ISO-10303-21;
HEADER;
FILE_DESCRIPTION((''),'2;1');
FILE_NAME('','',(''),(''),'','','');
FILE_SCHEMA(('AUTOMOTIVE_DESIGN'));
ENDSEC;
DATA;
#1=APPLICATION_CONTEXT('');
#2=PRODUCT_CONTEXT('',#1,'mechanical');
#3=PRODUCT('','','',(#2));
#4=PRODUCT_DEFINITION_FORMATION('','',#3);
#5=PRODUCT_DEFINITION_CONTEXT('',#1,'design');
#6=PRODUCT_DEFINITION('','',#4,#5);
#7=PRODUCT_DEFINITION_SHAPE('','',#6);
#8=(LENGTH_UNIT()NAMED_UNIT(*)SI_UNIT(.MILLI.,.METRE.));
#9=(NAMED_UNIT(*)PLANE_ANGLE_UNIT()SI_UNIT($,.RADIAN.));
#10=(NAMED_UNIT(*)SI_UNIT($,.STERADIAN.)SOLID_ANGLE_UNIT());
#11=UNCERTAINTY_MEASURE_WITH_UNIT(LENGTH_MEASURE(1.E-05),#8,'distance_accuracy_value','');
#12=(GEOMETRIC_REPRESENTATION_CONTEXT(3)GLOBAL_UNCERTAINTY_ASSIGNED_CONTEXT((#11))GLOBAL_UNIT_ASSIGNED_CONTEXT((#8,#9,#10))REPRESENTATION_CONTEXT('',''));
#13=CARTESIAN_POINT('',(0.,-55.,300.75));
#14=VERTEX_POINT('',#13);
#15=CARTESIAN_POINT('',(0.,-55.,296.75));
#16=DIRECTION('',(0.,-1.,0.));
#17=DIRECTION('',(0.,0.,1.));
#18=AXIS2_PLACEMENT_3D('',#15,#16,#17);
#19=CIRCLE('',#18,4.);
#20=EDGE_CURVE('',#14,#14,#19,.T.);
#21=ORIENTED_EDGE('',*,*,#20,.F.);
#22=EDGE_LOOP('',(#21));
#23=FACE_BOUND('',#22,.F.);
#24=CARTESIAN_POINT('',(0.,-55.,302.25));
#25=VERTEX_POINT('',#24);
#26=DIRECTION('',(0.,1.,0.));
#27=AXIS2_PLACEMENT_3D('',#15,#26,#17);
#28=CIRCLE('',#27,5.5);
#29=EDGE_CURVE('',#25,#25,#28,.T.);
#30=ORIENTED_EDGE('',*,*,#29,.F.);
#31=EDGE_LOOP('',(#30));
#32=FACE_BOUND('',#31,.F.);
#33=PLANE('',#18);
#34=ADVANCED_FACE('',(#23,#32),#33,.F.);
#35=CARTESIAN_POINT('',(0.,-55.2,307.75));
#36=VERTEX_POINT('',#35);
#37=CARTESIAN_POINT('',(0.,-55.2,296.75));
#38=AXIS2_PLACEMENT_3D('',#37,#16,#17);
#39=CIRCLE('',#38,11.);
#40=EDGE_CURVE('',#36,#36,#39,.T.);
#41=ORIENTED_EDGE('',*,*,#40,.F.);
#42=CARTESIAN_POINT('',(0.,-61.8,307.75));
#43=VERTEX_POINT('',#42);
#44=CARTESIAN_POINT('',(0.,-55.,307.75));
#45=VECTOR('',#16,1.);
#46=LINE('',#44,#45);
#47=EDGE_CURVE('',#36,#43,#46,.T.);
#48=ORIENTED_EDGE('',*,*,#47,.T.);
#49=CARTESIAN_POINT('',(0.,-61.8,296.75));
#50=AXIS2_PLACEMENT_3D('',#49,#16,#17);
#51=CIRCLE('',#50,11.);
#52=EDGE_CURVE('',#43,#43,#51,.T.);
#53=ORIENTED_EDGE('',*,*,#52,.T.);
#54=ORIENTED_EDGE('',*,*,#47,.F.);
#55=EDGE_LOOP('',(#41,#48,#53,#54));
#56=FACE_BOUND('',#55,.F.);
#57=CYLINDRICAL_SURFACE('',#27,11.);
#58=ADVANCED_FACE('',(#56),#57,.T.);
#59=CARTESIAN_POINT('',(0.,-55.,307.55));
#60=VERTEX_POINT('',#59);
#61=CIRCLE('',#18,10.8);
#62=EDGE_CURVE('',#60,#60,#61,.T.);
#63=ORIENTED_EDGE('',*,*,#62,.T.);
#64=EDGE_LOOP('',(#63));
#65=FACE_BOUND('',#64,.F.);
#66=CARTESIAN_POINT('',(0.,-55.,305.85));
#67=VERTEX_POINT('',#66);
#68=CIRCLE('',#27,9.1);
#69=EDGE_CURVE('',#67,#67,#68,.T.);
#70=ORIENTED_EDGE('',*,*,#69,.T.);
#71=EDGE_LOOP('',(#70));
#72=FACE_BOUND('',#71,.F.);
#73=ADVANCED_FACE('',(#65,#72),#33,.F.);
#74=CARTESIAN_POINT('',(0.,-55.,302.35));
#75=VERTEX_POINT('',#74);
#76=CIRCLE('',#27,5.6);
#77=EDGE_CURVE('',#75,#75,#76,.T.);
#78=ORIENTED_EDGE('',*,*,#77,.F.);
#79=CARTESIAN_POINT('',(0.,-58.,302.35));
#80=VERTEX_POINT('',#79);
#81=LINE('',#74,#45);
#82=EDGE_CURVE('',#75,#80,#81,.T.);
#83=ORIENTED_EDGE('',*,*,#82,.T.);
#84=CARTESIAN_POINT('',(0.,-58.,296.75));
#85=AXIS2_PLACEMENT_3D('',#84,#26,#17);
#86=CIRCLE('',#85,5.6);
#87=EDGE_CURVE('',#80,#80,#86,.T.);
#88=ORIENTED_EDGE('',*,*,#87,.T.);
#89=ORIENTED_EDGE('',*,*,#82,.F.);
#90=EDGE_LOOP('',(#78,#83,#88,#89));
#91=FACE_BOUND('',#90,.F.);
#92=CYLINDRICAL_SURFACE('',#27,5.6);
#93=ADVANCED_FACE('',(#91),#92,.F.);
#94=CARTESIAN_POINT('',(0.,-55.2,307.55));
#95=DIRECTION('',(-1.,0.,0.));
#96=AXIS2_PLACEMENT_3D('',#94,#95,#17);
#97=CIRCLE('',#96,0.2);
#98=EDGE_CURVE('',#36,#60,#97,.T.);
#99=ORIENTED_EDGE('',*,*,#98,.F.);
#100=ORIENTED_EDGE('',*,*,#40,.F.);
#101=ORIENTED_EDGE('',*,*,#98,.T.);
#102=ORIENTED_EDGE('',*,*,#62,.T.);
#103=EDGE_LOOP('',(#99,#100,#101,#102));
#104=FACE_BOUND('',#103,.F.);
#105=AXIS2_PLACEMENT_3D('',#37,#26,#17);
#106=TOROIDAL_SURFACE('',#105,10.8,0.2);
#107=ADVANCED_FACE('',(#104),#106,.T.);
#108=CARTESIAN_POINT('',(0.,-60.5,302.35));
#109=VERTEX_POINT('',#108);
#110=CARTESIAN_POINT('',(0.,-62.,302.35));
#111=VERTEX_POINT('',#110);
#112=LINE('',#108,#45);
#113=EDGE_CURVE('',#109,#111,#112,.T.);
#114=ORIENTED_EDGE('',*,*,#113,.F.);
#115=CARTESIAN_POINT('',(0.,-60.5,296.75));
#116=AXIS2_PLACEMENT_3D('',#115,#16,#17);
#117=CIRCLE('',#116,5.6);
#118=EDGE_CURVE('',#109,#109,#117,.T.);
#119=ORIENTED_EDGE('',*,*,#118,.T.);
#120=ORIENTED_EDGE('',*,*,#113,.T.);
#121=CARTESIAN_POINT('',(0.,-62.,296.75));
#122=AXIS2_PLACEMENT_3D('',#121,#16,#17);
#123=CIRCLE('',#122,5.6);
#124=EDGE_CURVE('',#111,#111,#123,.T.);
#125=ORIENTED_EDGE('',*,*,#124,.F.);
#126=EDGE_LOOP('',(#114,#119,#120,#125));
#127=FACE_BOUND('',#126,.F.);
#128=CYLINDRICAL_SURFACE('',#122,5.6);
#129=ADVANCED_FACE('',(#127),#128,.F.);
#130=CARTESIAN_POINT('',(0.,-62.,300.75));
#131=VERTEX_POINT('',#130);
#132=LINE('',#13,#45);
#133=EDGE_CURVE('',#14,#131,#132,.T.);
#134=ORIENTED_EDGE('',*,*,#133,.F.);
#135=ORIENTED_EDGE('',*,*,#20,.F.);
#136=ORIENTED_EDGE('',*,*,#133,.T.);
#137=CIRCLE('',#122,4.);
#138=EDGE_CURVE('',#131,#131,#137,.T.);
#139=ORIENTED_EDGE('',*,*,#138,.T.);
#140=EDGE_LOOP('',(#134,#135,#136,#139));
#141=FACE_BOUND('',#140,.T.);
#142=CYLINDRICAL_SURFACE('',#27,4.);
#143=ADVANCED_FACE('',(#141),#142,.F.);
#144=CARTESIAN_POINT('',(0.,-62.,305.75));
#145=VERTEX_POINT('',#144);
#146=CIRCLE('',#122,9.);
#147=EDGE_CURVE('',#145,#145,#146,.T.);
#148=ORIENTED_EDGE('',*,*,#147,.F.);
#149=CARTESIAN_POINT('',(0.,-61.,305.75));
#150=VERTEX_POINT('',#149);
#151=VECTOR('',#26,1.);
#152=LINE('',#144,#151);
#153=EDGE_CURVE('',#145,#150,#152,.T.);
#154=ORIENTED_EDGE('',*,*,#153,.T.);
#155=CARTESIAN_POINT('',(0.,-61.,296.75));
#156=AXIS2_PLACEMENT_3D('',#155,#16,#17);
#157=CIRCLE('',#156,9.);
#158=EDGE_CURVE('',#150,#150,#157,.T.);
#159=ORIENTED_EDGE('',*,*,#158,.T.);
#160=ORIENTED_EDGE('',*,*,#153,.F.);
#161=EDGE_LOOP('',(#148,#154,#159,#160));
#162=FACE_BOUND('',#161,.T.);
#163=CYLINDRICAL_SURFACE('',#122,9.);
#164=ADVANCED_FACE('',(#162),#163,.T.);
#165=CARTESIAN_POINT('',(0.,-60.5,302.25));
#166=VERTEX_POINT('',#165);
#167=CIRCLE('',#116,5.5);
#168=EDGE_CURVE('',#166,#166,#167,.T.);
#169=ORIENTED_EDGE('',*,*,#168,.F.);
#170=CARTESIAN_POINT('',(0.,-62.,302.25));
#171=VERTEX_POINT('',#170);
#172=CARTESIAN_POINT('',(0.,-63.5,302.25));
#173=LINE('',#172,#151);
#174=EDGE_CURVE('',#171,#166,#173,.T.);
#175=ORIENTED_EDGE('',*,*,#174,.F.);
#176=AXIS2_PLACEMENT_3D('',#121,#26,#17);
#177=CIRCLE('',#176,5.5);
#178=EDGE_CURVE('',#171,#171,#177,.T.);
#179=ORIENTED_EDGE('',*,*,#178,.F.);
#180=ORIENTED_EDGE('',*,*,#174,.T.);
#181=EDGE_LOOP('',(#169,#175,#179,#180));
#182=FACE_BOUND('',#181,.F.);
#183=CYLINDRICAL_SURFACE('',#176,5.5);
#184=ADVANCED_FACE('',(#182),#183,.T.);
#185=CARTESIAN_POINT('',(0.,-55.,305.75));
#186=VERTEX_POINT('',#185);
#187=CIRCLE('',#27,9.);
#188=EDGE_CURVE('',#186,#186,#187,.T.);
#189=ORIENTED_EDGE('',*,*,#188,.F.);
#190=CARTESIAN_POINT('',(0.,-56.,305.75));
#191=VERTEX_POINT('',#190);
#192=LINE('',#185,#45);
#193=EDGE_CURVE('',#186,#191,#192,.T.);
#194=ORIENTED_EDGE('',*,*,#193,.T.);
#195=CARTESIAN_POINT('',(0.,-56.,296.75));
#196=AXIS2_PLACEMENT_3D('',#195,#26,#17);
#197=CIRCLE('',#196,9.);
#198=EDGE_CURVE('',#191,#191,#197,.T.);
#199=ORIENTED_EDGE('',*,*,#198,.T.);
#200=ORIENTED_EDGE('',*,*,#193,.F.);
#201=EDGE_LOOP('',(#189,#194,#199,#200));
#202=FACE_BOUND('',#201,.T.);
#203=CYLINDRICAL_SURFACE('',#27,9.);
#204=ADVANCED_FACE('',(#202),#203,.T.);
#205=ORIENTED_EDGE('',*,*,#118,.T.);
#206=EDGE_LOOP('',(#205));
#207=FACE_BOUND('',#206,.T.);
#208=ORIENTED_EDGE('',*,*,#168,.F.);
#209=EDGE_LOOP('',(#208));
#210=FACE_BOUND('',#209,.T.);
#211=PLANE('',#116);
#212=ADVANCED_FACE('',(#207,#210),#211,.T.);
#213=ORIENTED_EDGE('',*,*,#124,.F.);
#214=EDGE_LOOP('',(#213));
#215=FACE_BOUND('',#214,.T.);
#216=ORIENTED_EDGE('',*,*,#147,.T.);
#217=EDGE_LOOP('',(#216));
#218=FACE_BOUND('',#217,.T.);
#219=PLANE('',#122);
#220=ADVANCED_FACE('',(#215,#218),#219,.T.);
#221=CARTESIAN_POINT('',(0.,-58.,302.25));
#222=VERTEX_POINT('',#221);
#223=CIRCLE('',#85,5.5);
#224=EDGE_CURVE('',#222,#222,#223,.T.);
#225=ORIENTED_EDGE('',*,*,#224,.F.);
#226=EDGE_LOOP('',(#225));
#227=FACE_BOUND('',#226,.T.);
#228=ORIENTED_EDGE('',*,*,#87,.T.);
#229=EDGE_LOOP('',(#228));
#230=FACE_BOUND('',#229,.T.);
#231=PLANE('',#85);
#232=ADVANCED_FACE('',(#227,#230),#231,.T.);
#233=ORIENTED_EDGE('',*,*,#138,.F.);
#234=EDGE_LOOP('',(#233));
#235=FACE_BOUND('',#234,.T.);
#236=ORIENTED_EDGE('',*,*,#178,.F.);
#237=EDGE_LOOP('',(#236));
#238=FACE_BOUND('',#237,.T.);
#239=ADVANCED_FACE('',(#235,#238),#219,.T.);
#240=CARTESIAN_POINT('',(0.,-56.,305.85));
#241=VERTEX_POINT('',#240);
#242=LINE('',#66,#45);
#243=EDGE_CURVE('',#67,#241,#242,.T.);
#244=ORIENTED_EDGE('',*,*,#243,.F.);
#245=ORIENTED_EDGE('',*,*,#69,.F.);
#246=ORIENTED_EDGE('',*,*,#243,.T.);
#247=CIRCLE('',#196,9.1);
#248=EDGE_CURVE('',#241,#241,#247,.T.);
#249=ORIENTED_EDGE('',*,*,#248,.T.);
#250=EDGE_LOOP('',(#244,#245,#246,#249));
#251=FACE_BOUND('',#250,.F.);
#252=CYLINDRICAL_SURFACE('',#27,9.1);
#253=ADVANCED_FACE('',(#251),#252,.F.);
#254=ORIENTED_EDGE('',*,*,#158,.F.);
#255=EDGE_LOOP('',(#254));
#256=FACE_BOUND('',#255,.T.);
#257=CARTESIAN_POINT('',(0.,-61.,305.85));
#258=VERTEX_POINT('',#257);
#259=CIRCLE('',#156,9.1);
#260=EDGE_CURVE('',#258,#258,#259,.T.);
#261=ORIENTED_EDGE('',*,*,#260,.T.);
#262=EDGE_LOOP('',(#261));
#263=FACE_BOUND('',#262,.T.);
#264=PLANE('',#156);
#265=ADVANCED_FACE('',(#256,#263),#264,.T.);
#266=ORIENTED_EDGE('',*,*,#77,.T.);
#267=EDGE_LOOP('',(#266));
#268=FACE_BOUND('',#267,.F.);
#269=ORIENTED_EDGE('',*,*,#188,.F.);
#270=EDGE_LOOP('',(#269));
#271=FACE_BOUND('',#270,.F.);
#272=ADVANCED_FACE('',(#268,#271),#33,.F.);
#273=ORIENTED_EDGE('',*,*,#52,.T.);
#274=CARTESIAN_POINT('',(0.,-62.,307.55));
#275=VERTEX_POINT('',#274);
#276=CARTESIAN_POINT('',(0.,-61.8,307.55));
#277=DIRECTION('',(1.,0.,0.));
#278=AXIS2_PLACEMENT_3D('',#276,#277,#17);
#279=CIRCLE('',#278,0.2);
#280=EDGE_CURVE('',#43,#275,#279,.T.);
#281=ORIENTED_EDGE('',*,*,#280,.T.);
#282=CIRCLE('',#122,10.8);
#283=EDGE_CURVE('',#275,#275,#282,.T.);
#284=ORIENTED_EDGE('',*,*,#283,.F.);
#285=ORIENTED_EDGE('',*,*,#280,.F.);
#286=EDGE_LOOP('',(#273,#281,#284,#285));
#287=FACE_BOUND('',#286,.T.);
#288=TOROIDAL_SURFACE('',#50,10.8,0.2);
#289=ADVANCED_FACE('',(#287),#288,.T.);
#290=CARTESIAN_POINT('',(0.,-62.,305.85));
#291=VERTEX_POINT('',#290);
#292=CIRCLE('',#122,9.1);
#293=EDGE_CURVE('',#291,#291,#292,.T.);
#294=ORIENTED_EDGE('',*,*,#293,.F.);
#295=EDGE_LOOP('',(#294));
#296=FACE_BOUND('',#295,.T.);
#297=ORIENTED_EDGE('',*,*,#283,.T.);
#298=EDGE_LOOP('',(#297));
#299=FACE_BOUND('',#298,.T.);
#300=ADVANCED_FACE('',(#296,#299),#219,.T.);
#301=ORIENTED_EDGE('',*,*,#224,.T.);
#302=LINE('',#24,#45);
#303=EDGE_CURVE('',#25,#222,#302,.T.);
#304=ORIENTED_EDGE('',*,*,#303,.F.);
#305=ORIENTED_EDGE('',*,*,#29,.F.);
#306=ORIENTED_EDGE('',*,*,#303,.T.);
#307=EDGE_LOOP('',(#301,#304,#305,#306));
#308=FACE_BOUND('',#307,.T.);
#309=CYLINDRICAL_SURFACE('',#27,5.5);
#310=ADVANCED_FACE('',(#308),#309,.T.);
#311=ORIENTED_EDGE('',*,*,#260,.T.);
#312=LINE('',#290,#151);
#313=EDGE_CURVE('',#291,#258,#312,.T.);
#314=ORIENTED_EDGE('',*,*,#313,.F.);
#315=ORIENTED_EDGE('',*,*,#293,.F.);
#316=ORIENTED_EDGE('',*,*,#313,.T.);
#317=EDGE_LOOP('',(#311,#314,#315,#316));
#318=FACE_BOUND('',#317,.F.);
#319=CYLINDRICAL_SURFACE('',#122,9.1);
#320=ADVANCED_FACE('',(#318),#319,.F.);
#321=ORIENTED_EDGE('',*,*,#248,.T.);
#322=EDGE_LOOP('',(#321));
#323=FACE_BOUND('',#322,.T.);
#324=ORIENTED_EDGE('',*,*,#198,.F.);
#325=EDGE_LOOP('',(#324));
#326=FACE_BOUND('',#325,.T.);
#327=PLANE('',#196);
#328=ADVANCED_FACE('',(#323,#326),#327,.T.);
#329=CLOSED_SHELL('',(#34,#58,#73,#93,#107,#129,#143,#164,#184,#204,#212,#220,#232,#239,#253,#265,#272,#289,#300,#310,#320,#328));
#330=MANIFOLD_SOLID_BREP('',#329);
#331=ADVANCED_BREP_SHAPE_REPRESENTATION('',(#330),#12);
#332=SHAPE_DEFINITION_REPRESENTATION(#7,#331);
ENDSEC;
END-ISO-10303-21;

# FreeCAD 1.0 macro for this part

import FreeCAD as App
import Part
import Sketcher
Q = App.Units.Quantity


def edges_at(feature, points):
    """Names of the edges that pass closest to the given points."""
    edges = feature.Shape.Edges
    near = lambda p: min(range(len(edges)), key=lambda i: edges[i].distToShape(Part.Vertex(*p))[0])
    return sorted({f"Edge{near(p) + 1}" for p in points})

doc = App.newDocument("Part")
params = doc.addObject("Spreadsheet::Sheet", "Params")
for row, (alias, value) in enumerate([
    ("sketch1_diameter", "22 mm"),
    ("sketch1_diameter2", "8 mm"),
    ("pad1_length", "7 mm"),
    ("sketch2_diameter", "11 mm"),
    ("sketch2_diameter2", "11.2 mm"),
    ("pocket1_length", "3 mm"),
    ("sketch3_diameter", "11 mm"),
    ("sketch3_diameter2", "11.2 mm"),
    ("pocket2_length", "3 mm"),
    ("sketch4_diameter", "18 mm"),
    ("sketch4_diameter2", "18.2 mm"),
    ("pocket3_length", "1 mm"),
    ("sketch5_diameter", "18 mm"),
    ("sketch5_diameter2", "18.2 mm"),
    ("pocket4_length", "1 mm"),
    ("fillet_radius", "0.2 mm"),
], start=1):
    params.set(f"A{row}", alias)
    params.set(f"B{row}", "=" + value)
    params.setAlias(f"B{row}", alias)

body = doc.addObject("PartDesign::Body", "Body")

# Sketch on XY plane
sketch1 = body.newObject("Sketcher::SketchObject", "Sketch")
sketch1.AttachmentSupport = (doc.getObject("XY_Plane"), [""])
sketch1.MapMode = "FlatFace"
sketch1.addGeometry([
    Part.Circle(App.Vector(0, 0, 0), App.Vector(0, 0, 1), 11),
    Part.Circle(App.Vector(0, 0, 0), App.Vector(0, 0, 1), 4),
], False)
sketch1.addConstraint([
    Sketcher.Constraint("Coincident", 0, 3, -1, 1),
    Sketcher.Constraint("Coincident", 1, 3, -1, 1),
    Sketcher.Constraint("Diameter", 0, Q("22 mm")),
    Sketcher.Constraint("Diameter", 1, Q("8 mm")),
])
sketch1.setExpression("Constraints[2]", "Params.sketch1_diameter")
sketch1.setExpression("Constraints[3]", "Params.sketch1_diameter2")
pad1 = body.newObject("PartDesign::Pad", "Pad")
pad1.Profile = sketch1
pad1.setExpression("Length", "Params.pad1_length")

# Sketch on XY plane
sketch2 = body.newObject("Sketcher::SketchObject", "Sketch001")
sketch2.AttachmentSupport = (doc.getObject("XY_Plane"), [""])
sketch2.MapMode = "FlatFace"
sketch2.AttachmentOffset = App.Placement(App.Vector(0, 0, 7), App.Rotation())
sketch2.addGeometry([
    Part.Circle(App.Vector(0, 0, 0), App.Vector(0, 0, 1), 5.6),
    Part.Circle(App.Vector(0, 0, 0), App.Vector(0, 0, 1), 5.5),
], False)
sketch2.addConstraint([
    Sketcher.Constraint("Coincident", 0, 3, -1, 1),
    Sketcher.Constraint("Coincident", 1, 3, -1, 1),
    Sketcher.Constraint("Diameter", 1, Q("11 mm")),
    Sketcher.Constraint("Diameter", 0, Q("11.2 mm")),
])
sketch2.setExpression("Constraints[2]", "Params.sketch2_diameter")
sketch2.setExpression("Constraints[3]", "Params.sketch2_diameter2")
pocket1 = body.newObject("PartDesign::Pocket", "Pocket")
pocket1.Profile = sketch2
pocket1.setExpression("Length", "Params.pocket1_length")
pocket1.Midplane = True

# Sketch on XY plane
sketch3 = body.newObject("Sketcher::SketchObject", "Sketch002")
sketch3.AttachmentSupport = (doc.getObject("XY_Plane"), [""])
sketch3.MapMode = "FlatFace"
sketch3.addGeometry([
    Part.Circle(App.Vector(0, 0, 0), App.Vector(0, 0, 1), 5.6),
    Part.Circle(App.Vector(0, 0, 0), App.Vector(0, 0, 1), 5.5),
], False)
sketch3.addConstraint([
    Sketcher.Constraint("Coincident", 0, 3, -1, 1),
    Sketcher.Constraint("Coincident", 1, 3, -1, 1),
    Sketcher.Constraint("Diameter", 1, Q("11 mm")),
    Sketcher.Constraint("Diameter", 0, Q("11.2 mm")),
])
sketch3.setExpression("Constraints[2]", "Params.sketch3_diameter")
sketch3.setExpression("Constraints[3]", "Params.sketch3_diameter2")
pocket2 = body.newObject("PartDesign::Pocket", "Pocket001")
pocket2.Profile = sketch3
pocket2.setExpression("Length", "Params.pocket2_length")
pocket2.Reversed = True

# Sketch on XY plane
sketch4 = body.newObject("Sketcher::SketchObject", "Sketch003")
sketch4.AttachmentSupport = (doc.getObject("XY_Plane"), [""])
sketch4.MapMode = "FlatFace"
sketch4.AttachmentOffset = App.Placement(App.Vector(0, 0, 7), App.Rotation())
sketch4.addGeometry([
    Part.Circle(App.Vector(0, 0, 0), App.Vector(0, 0, 1), 9.1),
    Part.Circle(App.Vector(0, 0, 0), App.Vector(0, 0, 1), 9),
], False)
sketch4.addConstraint([
    Sketcher.Constraint("Coincident", 0, 3, -1, 1),
    Sketcher.Constraint("Coincident", 1, 3, -1, 1),
    Sketcher.Constraint("Diameter", 1, Q("18 mm")),
    Sketcher.Constraint("Diameter", 0, Q("18.2 mm")),
])
sketch4.setExpression("Constraints[2]", "Params.sketch4_diameter")
sketch4.setExpression("Constraints[3]", "Params.sketch4_diameter2")
pocket3 = body.newObject("PartDesign::Pocket", "Pocket002")
pocket3.Profile = sketch4
pocket3.setExpression("Length", "Params.pocket3_length")

# Sketch on XY plane
sketch5 = body.newObject("Sketcher::SketchObject", "Sketch004")
sketch5.AttachmentSupport = (doc.getObject("XY_Plane"), [""])
sketch5.MapMode = "FlatFace"
sketch5.addGeometry([
    Part.Circle(App.Vector(0, 0, 0), App.Vector(0, 0, 1), 9.1),
    Part.Circle(App.Vector(0, 0, 0), App.Vector(0, 0, 1), 9),
], False)
sketch5.addConstraint([
    Sketcher.Constraint("Coincident", 0, 3, -1, 1),
    Sketcher.Constraint("Coincident", 1, 3, -1, 1),
    Sketcher.Constraint("Diameter", 1, Q("18 mm")),
    Sketcher.Constraint("Diameter", 0, Q("18.2 mm")),
])
sketch5.setExpression("Constraints[2]", "Params.sketch5_diameter")
sketch5.setExpression("Constraints[3]", "Params.sketch5_diameter2")
pocket4 = body.newObject("PartDesign::Pocket", "Pocket003")
pocket4.Profile = sketch5
pocket4.setExpression("Length", "Params.pocket4_length")
pocket4.Reversed = True
doc.recompute()

fillet = body.newObject("PartDesign::Fillet", "Fillet")
fillet.Base = (pocket4, edges_at(pocket4, [(-11, 0, 0), (-11, 0, 7)]))
fillet.setExpression("Radius", "Params.fillet_radius")
body2 = doc.addObject("PartDesign::Body", "Body001")
doc.recompute()

body.Placement = App.Placement(App.Vector(0, 0, 0), App.Rotation(App.Vector(0, 1, 0), 270))
boolean = body2.newObject("PartDesign::Boolean", "Boolean")
boolean.Type = "Fuse"
boolean.addObjects([body])
body3 = doc.addObject("PartDesign::Body", "Body002")
doc.recompute()

body2.Placement = App.Placement(App.Vector(0, -55, 296.75), App.Rotation(App.Vector(0, 0, 1), 90))
boolean2 = body3.newObject("PartDesign::Boolean", "Boolean001")
boolean2.Type = "Fuse"
boolean2.addObjects([body2])

doc.recompute()
